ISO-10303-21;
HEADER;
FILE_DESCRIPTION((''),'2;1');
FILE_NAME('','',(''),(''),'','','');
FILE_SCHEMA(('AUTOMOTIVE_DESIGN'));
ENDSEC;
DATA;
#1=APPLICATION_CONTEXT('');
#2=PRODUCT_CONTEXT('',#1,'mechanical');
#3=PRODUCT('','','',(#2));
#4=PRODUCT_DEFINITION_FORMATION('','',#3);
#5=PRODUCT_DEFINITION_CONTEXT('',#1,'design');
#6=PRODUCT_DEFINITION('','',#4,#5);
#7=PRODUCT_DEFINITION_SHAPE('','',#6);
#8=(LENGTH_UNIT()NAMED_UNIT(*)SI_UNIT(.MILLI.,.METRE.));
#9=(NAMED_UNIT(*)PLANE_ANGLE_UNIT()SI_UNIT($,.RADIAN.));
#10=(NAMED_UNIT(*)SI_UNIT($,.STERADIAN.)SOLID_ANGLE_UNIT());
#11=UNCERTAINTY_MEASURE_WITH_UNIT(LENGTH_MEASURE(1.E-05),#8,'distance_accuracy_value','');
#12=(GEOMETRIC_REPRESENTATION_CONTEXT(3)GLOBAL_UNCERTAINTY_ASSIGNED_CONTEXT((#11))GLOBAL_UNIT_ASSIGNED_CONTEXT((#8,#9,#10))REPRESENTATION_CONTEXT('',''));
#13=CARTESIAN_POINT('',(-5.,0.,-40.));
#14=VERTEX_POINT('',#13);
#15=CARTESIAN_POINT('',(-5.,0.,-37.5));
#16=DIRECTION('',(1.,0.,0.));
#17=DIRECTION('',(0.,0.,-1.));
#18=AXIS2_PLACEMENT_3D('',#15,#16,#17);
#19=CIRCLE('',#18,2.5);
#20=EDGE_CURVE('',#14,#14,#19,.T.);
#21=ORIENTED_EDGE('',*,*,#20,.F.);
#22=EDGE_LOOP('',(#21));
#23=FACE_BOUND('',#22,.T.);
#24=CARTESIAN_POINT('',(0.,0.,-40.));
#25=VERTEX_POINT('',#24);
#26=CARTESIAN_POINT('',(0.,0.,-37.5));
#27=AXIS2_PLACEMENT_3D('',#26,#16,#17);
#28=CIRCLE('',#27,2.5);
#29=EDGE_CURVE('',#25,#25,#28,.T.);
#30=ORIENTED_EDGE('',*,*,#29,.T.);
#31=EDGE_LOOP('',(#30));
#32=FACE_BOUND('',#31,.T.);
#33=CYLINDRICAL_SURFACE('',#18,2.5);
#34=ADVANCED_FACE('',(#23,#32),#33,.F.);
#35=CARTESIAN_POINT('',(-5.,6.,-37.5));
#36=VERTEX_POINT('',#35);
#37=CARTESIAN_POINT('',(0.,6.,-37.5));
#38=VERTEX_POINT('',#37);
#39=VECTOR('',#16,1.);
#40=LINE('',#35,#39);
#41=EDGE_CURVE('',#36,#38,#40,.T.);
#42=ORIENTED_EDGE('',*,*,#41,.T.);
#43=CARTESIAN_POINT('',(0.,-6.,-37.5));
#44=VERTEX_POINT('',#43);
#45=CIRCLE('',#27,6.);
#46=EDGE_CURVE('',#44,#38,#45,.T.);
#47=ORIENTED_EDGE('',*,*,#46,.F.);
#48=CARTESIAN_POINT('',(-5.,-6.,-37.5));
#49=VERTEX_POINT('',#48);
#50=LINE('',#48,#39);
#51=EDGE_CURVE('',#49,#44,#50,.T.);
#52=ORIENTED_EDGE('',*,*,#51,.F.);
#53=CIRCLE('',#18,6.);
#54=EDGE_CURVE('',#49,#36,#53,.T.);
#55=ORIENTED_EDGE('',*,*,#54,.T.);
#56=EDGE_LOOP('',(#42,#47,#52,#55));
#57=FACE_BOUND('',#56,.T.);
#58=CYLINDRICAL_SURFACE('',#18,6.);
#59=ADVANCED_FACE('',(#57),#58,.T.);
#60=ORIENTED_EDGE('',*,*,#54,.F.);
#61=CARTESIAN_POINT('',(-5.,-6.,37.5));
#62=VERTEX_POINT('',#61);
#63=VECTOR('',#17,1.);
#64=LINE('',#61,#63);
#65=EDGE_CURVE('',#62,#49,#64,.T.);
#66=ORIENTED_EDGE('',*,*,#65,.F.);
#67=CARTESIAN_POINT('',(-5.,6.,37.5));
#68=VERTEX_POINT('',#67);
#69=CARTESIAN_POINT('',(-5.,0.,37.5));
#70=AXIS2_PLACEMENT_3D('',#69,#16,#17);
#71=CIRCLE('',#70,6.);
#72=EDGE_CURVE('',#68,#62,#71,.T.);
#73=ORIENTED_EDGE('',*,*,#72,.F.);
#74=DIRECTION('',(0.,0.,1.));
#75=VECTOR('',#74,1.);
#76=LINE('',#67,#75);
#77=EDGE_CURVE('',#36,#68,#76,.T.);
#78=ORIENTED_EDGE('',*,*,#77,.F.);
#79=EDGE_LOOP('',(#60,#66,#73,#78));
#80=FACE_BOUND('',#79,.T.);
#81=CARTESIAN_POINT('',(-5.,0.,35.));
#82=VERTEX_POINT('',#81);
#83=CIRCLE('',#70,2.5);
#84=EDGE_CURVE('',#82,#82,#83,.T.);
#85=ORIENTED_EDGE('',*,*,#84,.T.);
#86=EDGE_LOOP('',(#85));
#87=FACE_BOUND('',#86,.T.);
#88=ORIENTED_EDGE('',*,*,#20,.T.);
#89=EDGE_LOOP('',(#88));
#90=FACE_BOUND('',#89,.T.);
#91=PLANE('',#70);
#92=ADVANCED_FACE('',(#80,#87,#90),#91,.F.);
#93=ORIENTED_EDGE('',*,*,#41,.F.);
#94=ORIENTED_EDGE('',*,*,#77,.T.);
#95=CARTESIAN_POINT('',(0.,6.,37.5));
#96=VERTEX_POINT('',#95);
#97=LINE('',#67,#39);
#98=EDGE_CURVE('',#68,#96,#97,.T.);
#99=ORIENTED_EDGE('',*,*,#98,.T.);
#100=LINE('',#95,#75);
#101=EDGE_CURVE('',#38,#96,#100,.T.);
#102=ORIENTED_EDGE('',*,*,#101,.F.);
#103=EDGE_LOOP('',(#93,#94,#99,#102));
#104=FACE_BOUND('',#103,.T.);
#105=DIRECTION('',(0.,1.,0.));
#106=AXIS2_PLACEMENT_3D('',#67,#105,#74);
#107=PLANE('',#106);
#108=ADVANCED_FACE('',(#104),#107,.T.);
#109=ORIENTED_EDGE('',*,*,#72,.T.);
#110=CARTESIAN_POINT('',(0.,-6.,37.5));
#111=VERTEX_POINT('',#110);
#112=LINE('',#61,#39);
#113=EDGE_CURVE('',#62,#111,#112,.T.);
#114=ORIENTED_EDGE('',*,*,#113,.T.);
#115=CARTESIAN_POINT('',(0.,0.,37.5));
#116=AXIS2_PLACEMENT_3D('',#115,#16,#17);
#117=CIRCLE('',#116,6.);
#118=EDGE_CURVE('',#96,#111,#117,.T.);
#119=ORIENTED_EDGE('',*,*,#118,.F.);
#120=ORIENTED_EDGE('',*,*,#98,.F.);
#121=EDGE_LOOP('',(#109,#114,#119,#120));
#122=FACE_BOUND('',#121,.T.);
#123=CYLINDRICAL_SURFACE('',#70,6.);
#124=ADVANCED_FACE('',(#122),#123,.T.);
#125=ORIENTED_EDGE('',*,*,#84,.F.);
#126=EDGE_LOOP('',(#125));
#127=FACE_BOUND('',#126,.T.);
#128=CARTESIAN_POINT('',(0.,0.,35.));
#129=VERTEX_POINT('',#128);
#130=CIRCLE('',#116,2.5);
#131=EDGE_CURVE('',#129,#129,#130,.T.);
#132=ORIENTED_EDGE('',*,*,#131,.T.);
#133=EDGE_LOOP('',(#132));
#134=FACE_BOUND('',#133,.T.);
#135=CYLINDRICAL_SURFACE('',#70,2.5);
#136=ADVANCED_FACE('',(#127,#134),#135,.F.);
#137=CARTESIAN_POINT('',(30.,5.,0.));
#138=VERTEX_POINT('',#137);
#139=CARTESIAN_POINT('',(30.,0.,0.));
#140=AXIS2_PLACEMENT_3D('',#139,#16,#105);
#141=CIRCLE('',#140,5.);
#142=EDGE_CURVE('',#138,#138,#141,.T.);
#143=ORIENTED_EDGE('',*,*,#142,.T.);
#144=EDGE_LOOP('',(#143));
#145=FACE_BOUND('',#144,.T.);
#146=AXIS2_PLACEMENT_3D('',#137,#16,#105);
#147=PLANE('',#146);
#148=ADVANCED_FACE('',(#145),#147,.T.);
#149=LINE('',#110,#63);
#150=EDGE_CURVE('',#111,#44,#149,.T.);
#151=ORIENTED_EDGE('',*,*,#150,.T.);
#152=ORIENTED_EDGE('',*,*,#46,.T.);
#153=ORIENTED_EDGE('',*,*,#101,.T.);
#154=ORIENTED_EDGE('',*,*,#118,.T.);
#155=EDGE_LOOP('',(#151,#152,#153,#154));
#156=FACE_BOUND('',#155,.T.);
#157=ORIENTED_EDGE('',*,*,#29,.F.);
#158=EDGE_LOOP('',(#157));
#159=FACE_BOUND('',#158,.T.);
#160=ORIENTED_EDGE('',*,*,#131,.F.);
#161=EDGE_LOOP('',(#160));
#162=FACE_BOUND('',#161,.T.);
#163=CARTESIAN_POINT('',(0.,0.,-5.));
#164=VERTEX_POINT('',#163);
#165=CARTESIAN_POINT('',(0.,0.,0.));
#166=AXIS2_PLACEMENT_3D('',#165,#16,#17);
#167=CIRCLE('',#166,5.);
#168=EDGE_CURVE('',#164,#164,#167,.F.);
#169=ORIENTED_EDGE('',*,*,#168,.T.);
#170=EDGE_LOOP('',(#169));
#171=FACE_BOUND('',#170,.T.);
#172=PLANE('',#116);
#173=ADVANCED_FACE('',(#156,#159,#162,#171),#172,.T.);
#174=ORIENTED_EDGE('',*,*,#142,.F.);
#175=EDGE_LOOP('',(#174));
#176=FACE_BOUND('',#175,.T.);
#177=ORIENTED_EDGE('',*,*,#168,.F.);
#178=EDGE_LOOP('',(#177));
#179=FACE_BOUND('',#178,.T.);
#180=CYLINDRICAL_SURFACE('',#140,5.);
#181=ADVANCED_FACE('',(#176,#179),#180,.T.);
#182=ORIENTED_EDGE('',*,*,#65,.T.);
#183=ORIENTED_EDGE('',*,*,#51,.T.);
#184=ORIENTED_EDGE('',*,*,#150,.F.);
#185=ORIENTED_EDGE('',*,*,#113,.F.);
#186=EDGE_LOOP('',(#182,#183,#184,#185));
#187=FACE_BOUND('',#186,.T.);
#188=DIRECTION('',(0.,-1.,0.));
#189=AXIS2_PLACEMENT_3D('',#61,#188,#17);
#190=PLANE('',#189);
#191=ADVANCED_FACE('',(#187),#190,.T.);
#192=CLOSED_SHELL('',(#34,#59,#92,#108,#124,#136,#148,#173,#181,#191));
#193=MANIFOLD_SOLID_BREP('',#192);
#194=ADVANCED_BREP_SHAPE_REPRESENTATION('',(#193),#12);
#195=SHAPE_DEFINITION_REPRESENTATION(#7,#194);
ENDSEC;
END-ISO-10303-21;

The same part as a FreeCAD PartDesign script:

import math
import FreeCAD as App
import Part
import Sketcher
Q = App.Units.Quantity

doc = App.newDocument("Part")
body = doc.addObject("PartDesign::Body", "Body")

# Sketch on XY plane
sketch1 = body.newObject("Sketcher::SketchObject", "Sketch")
sketch1.AttachmentSupport = (doc.getObject("XY_Plane"), [""])
sketch1.MapMode = "FlatFace"
sketch1.addGeometry([
    Part.LineSegment(App.Vector(0, 5, 0), App.Vector(0, 0, 0)),
    Part.LineSegment(App.Vector(0, 0, 0), App.Vector(30, 0, 0)),
    Part.LineSegment(App.Vector(30, 0, 0), App.Vector(30, 5, 0)),
    Part.LineSegment(App.Vector(30, 5, 0), App.Vector(0, 5, 0)),
], False)
sketch1.addConstraint([
    Sketcher.Constraint("Coincident", 0, 2, 1, 1),
    Sketcher.Constraint("Coincident", 1, 2, 2, 1),
    Sketcher.Constraint("Coincident", 2, 2, 3, 1),
    Sketcher.Constraint("Coincident", 3, 2, 0, 1),
    Sketcher.Constraint("Vertical", 0),
    Sketcher.Constraint("Horizontal", 1),
    Sketcher.Constraint("Vertical", 2),
    Sketcher.Constraint("Horizontal", 3),
    Sketcher.Constraint("Coincident", 0, 2, -1, 1),
    Sketcher.Constraint("DistanceX", 1, 1, 1, 2, Q("30 mm")),
    Sketcher.Constraint("DistanceY", 0, 2, 0, 1, Q("5 mm")),
])
revolution = body.newObject("PartDesign::Revolution", "Revolution")
revolution.Profile = sketch1
revolution.ReferenceAxis = (sketch1, ["H_Axis"])
revolution.Angle = 360

# Sketch on YZ plane
sketch2 = body.newObject("Sketcher::SketchObject", "Sketch001")
sketch2.AttachmentSupport = (doc.getObject("YZ_Plane"), [""])
sketch2.MapMode = "FlatFace"
sketch2.addGeometry([
    Part.LineSegment(App.Vector(6, -37.5, 0), App.Vector(6, 37.5, 0)),  # 0
    Part.ArcOfCircle(Part.Circle(App.Vector(0, 37.5, 0), App.Vector(0, 0, 1), 6), math.radians(0), math.radians(180)),  # 1
    Part.LineSegment(App.Vector(-6, 37.5, 0), App.Vector(-6, -37.5, 0)),  # 2
    Part.ArcOfCircle(Part.Circle(App.Vector(0, -37.5, 0), App.Vector(0, 0, 1), 6), math.radians(180), math.radians(360)),  # 3
    Part.Circle(App.Vector(0, -37.5, 0), App.Vector(0, 0, 1), 2.5),  # 4
    Part.Circle(App.Vector(0, 37.5, 0), App.Vector(0, 0, 1), 2.5),  # 5
], False)
sketch2.addConstraint([
    Sketcher.Constraint("Tangent", 0, 2, 1, 1),
    Sketcher.Constraint("Tangent", 1, 2, 2, 1),
    Sketcher.Constraint("Tangent", 2, 2, 3, 1),
    Sketcher.Constraint("Tangent", 3, 2, 0, 1),
    Sketcher.Constraint("Vertical", 0),
    Sketcher.Constraint("Vertical", 2),
    Sketcher.Constraint("Coincident", 4, 3, 3, 3),
    Sketcher.Constraint("Coincident", 5, 3, 1, 3),
    Sketcher.Constraint("Equal", 4, 5),
    Sketcher.Constraint("Symmetric", 1, 3, 3, 3, -1, 1),
    Sketcher.Constraint("Diameter", 4, Q("5 mm")),
    Sketcher.Constraint("Radius", 1, Q("6 mm")),
    Sketcher.Constraint("DistanceY", 0, 1, 0, 2, Q("75 mm")),
])
pad1 = body.newObject("PartDesign::Pad", "Pad")
pad1.Profile = sketch2
pad1.Length = 5
pad1.Reversed = True

doc.recompute()
